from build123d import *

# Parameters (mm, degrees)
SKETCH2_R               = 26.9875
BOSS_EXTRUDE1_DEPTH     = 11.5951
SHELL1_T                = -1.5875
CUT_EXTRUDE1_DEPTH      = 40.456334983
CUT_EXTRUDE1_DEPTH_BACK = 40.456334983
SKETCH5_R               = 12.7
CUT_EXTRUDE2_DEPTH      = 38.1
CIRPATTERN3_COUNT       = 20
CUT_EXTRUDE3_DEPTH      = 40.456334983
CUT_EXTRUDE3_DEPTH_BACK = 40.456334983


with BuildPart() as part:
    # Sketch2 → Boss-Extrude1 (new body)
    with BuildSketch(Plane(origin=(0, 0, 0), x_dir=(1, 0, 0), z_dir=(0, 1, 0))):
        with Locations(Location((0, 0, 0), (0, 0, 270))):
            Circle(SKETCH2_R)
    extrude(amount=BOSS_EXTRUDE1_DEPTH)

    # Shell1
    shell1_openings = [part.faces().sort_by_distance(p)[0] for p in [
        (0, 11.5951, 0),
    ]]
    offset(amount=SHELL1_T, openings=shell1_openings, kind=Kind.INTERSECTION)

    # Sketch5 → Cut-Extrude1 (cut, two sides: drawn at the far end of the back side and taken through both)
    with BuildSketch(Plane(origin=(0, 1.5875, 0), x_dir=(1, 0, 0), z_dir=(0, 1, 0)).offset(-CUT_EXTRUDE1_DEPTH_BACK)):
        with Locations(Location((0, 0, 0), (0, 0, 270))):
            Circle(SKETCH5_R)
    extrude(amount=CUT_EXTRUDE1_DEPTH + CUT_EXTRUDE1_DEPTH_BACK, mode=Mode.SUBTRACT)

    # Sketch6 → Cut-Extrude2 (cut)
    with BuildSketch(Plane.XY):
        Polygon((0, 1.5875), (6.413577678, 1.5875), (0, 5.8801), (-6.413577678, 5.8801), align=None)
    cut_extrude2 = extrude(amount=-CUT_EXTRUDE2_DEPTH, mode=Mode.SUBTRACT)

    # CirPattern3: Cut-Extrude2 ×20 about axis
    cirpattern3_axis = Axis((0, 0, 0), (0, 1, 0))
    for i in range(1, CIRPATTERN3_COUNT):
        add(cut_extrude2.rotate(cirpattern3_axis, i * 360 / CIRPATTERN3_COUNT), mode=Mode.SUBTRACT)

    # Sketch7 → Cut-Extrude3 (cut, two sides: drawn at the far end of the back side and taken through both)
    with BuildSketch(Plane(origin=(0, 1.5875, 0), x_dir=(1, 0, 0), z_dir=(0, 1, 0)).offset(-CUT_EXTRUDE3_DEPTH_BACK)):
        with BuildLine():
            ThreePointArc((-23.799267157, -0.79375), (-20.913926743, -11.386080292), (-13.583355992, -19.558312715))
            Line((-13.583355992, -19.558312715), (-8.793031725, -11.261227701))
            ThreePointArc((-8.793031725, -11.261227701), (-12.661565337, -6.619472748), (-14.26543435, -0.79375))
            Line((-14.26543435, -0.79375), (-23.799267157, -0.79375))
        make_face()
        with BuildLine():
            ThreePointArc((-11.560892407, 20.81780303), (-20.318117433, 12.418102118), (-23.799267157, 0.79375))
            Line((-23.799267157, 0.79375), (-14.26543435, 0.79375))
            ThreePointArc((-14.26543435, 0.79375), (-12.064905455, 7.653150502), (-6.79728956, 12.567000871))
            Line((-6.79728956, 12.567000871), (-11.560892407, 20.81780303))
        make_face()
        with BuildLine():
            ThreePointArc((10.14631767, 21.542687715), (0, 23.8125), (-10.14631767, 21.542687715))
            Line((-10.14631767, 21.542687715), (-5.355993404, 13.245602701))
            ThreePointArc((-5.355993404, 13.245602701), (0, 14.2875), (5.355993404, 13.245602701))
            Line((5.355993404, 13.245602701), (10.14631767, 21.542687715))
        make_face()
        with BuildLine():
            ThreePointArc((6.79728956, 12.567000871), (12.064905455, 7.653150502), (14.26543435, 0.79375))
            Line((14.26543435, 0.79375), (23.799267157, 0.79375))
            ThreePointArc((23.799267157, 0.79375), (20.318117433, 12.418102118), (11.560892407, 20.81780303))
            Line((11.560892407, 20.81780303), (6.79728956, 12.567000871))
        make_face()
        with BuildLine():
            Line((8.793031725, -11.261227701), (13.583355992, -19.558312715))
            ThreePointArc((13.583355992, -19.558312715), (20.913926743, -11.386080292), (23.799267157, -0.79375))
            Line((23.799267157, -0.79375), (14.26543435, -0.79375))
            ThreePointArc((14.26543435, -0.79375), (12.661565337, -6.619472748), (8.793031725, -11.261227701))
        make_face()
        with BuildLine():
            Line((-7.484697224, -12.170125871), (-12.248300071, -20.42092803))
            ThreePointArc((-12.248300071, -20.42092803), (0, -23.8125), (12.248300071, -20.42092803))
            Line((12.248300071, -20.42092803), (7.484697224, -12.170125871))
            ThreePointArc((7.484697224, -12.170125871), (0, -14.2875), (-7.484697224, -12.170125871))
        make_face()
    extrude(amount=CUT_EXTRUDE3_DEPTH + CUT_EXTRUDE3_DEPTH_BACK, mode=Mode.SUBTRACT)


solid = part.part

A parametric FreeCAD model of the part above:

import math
import FreeCAD as App
import Part
import Sketcher

V = App.Vector
Q = App.Units.Quantity


def faces_at(feature, points):
    """Names of the faces that lie closest to the given points."""
    faces = feature.Shape.Faces
    near = lambda p: min(range(len(faces)), key=lambda i: faces[i].distToShape(Part.Vertex(*p))[0])
    return sorted({f"Face{near(p) + 1}" for p in points})

doc = App.newDocument("Part")
body = doc.addObject("PartDesign::Body", "Body")

sketch1 = doc.addObject("Sketcher::SketchObject", "Sketch")
body.addObject(sketch1)
sketch1.AttachmentSupport = (doc.XZ_Plane, [""])
sketch1.MapMode = "FlatFace"
sketch1.addGeometry(Part.Circle(V(0, 0, 0), V(0, 0, 1), 26.9875), False)
sketch1.addConstraint([
    Sketcher.Constraint("Coincident", 0, 3, -1, 1),
    Sketcher.Constraint("Diameter", 0, Q("2.125 in")),
])
pad1 = doc.addObject("PartDesign::Pad", "Pad")
body.addObject(pad1)
pad1.Profile = sketch1
pad1.Length = Q("0.4565 in")
pad1.Reversed = True
doc.recompute()

thickness = doc.addObject("PartDesign::Thickness", "Thickness")
body.addObject(thickness)
thickness.Base = (pad1, faces_at(pad1, [(0, 11.595, 0)]))
thickness.Value = Q("0.0625 in")
thickness.Reversed = True
thickness.Join = "Intersection"

sketch2 = doc.addObject("Sketcher::SketchObject", "Sketch001")
body.addObject(sketch2)
sketch2.AttachmentSupport = (doc.XZ_Plane, [""])
sketch2.MapMode = "FlatFace"
sketch2.AttachmentOffset = App.Placement(V(0, 0, -0.0625 * 25.4), App.Rotation())
sketch2.addGeometry(Part.Circle(V(0, 0, 0), V(0, 0, 1), 12.7), False)
sketch2.addConstraint([
    Sketcher.Constraint("Coincident", 0, 3, -1, 1),
    Sketcher.Constraint("Diameter", 0, Q("1 in")),
])
pocket1 = doc.addObject("PartDesign::Pocket", "Pocket")
body.addObject(pocket1)
pocket1.Profile = sketch2
pocket1.Type = "ThroughAll"
pocket1.Midplane = True

sketch3 = doc.addObject("Sketcher::SketchObject", "Sketch002")
body.addObject(sketch3)
sketch3.AttachmentSupport = (doc.XY_Plane, [""])
sketch3.MapMode = "FlatFace"
sketch3.addGeometry([
    Part.LineSegment(V(0, 1.5875, 0), V(6.413578, 1.5875, 0)),
    Part.LineSegment(V(6.413578, 1.5875, 0), V(0, 5.8801, 0)),
    Part.LineSegment(V(0, 5.8801, 0), V(-6.413578, 5.8801, 0)),
    Part.LineSegment(V(-6.413578, 5.8801, 0), V(0, 1.5875, 0)),
], False)
sketch3.addConstraint([
    Sketcher.Constraint("Coincident", 0, 2, 1, 1),
    Sketcher.Constraint("Coincident", 1, 2, 2, 1),
    Sketcher.Constraint("Coincident", 2, 2, 3, 1),
    Sketcher.Constraint("Coincident", 3, 2, 0, 1),
    Sketcher.Constraint("Horizontal", 0),
    Sketcher.Constraint("Horizontal", 2),
    Sketcher.Constraint("PointOnObject", 1, 2, -2),
    Sketcher.Constraint("PointOnObject", 3, 2, -2),
    Sketcher.Constraint("Parallel", 1, 3),
    Sketcher.Constraint("DistanceY", -1, 1, 0, 2, Q("0.0625 in")),
    Sketcher.Constraint("DistanceY", 0, 2, 1, 2, Q("0.169 in")),
    Sketcher.Constraint("Distance", 1, Q("7.717538 mm")),
])
pocket2 = doc.addObject("PartDesign::Pocket", "Pocket001")
body.addObject(pocket2)
pocket2.Profile = sketch3
pocket2.Length = Q("1.5 in")
doc.recompute()

polarpattern = doc.addObject("PartDesign::PolarPattern", "PolarPattern")
body.addObject(polarpattern)
polarpattern.Originals = [pocket2]
polarpattern.Axis = (doc.Y_Axis, [""])
polarpattern.Angle = 360
polarpattern.Occurrences = 20
body.Tip = polarpattern

sketch4 = doc.addObject("Sketcher::SketchObject", "Sketch003")
body.addObject(sketch4)
sketch4.AttachmentSupport = (doc.XZ_Plane, [""])
sketch4.MapMode = "FlatFace"
sketch4.AttachmentOffset = App.Placement(V(0, 0, -0.0625 * 25.4), App.Rotation())
sketch4.addGeometry([
    Part.ArcOfCircle(Part.Circle(V(0, 0, 0), V(0, 0, 1), 23.8125), math.radians(124.780192), math.radians(178.089787)),
    Part.LineSegment(V(-13.583356, 19.558313, 0), V(-8.793032, 11.261228, 0)),
    Part.ArcOfCircle(Part.Circle(V(0, 0, 0), V(0, 0, 1), 14.2875), math.radians(127.983556), math.radians(176.815261)),
    Part.LineSegment(V(-14.265434, 0.79375, 0), V(-23.799267, 0.79375, 0)),
    Part.ArcOfCircle(Part.Circle(V(0, 0, 0), V(0, 0, 1), 23.8125), math.radians(-178.089787), math.radians(-119.045026)),
    Part.LineSegment(V(-23.799267, -0.79375, 0), V(-14.265434, -0.79375, 0)),
    Part.ArcOfCircle(Part.Circle(V(0, 0, 0), V(0, 0, 1), 14.2875), math.radians(-176.815261), math.radians(-118.408246)),
    Part.LineSegment(V(-6.79729, -12.567001, 0), V(-11.560892, -20.817803, 0)),
    Part.ArcOfCircle(Part.Circle(V(0, 0, 0), V(0, 0, 1), 23.8125), math.radians(-115.219808), math.radians(-64.780192)),
    Part.LineSegment(V(-10.146318, -21.542688, 0), V(-5.355993, -13.245603, 0)),
    Part.ArcOfCircle(Part.Circle(V(0, 0, 0), V(0, 0, 1), 14.2875), math.radians(-112.016444), math.radians(-67.983556)),
    Part.LineSegment(V(5.355993, -13.245603, 0), V(10.146318, -21.542688, 0)),
    Part.ArcOfCircle(Part.Circle(V(0, 0, 0), V(0, 0, 1), 14.2875), math.radians(-61.591754), math.radians(-3.184739)),
    Part.LineSegment(V(14.265434, -0.79375, 0), V(23.799267, -0.79375, 0)),
    Part.ArcOfCircle(Part.Circle(V(0, 0, 0), V(0, 0, 1), 23.8125), math.radians(-60.954974), math.radians(-1.910213)),
    Part.LineSegment(V(11.560892, -20.817803, 0), V(6.79729, -12.567001, 0)),
    Part.LineSegment(V(8.793032, 11.261228, 0), V(13.583356, 19.558313, 0)),
    Part.ArcOfCircle(Part.Circle(V(0, 0, 0), V(0, 0, 1), 23.8125), math.radians(1.910213), math.radians(55.219808)),
    Part.LineSegment(V(23.799267, 0.79375, 0), V(14.265434, 0.79375, 0)),
    Part.ArcOfCircle(Part.Circle(V(0, 0, 0), V(0, 0, 1), 14.2875), math.radians(3.184739), math.radians(52.016444)),
    Part.LineSegment(V(-7.484697, 12.170126, 0), V(-12.2483, 20.420928, 0)),
    Part.ArcOfCircle(Part.Circle(V(0, 0, 0), V(0, 0, 1), 23.8125), math.radians(59.045026), math.radians(120.954974)),
    Part.LineSegment(V(12.2483, 20.420928, 0), V(7.484697, 12.170126, 0)),
    Part.ArcOfCircle(Part.Circle(V(0, 0, 0), V(0, 0, 1), 14.2875), math.radians(58.408246), math.radians(121.591754)),
], False)
sketch4.addConstraint([
    Sketcher.Constraint("Coincident", 0, 1, 1, 1),
    Sketcher.Constraint("Coincident", 1, 2, 2, 1),
    Sketcher.Constraint("Coincident", 2, 2, 3, 1),
    Sketcher.Constraint("Coincident", 3, 2, 0, 2),
    Sketcher.Constraint("Coincident", 4, 1, 5, 1),
    Sketcher.Constraint("Coincident", 5, 2, 6, 1),
    Sketcher.Constraint("Coincident", 6, 2, 7, 1),
    Sketcher.Constraint("Coincident", 7, 2, 4, 2),
    Sketcher.Constraint("Coincident", 8, 1, 9, 1),
    Sketcher.Constraint("Coincident", 9, 2, 10, 1),
    Sketcher.Constraint("Coincident", 10, 2, 11, 1),
    Sketcher.Constraint("Coincident", 11, 2, 8, 2),
    Sketcher.Constraint("Coincident", 12, 2, 13, 1),
    Sketcher.Constraint("Coincident", 13, 2, 14, 2),
    Sketcher.Constraint("Coincident", 14, 1, 15, 1),
    Sketcher.Constraint("Coincident", 15, 2, 12, 1),
    Sketcher.Constraint("Coincident", 16, 2, 17, 2),
    Sketcher.Constraint("Coincident", 17, 1, 18, 1),
    Sketcher.Constraint("Coincident", 18, 2, 19, 1),
    Sketcher.Constraint("Coincident", 19, 2, 16, 1),
    Sketcher.Constraint("Coincident", 20, 2, 21, 2),
    Sketcher.Constraint("Coincident", 21, 1, 22, 1),
    Sketcher.Constraint("Coincident", 22, 2, 23, 1),
    Sketcher.Constraint("Coincident", 23, 2, 20, 1),
    Sketcher.Constraint("Horizontal", 3),
    Sketcher.Constraint("Horizontal", 5),
    Sketcher.Constraint("Horizontal", 13),
    Sketcher.Constraint("Horizontal", 18),
    Sketcher.Constraint("Coincident", 0, 3, -1, 1),
    Sketcher.Constraint("Coincident", 2, 3, -1, 1),
    Sketcher.Constraint("Coincident", 4, 3, -1, 1),
    Sketcher.Constraint("Coincident", 6, 3, -1, 1),
    Sketcher.Constraint("Coincident", 8, 3, -1, 1),
    Sketcher.Constraint("Coincident", 10, 3, -1, 1),
    Sketcher.Constraint("Coincident", 12, 3, -1, 1),
    Sketcher.Constraint("Coincident", 14, 3, -1, 1),
    Sketcher.Constraint("Coincident", 17, 3, -1, 1),
    Sketcher.Constraint("Coincident", 19, 3, -1, 1),
    Sketcher.Constraint("Coincident", 21, 3, -1, 1),
    Sketcher.Constraint("Coincident", 23, 3, -1, 1),
    Sketcher.Constraint("Equal", 0, 4),
    Sketcher.Constraint("Equal", 2, 6),
    Sketcher.Constraint("Equal", 4, 8),
    Sketcher.Constraint("Equal", 6, 10),
    Sketcher.Constraint("Equal", 10, 12),
    Sketcher.Constraint("Equal", 8, 14),
    Sketcher.Constraint("Equal", 14, 17),
    Sketcher.Constraint("Equal", 12, 19),
    Sketcher.Constraint("Equal", 17, 21),
    Sketcher.Constraint("Equal", 19, 23),
    Sketcher.Constraint("Parallel", 7, 9),
    Sketcher.Constraint("Parallel", 1, 11),
    Sketcher.Constraint("Parallel", 11, 15),
    Sketcher.Constraint("Parallel", 9, 16),
    Sketcher.Constraint("Parallel", 15, 20),
    Sketcher.Constraint("Parallel", 16, 22),
    Sketcher.Constraint("Horizontal", 9, 2, 10, 2),
    Sketcher.Constraint("Horizontal", 8, 1, 11, 2),
    Sketcher.Constraint("Horizontal", 5, 2, 12, 2),
    Sketcher.Constraint("Horizontal", 7, 2, 14, 1),
    Sketcher.Constraint("Horizontal", 0, 1, 16, 2),
    Sketcher.Constraint("Horizontal", 3, 2, 17, 1),
    Sketcher.Constraint("Horizontal", 20, 2, 21, 1),
    Sketcher.Constraint("Vertical", 3, 2, 4, 1),
    Sketcher.Constraint("Equal", 1, 9),
    Sketcher.Constraint("Equal", 15, 20),
    Sketcher.Constraint("Angle", 1, Q("-60 deg")),
    Sketcher.Constraint("Radius", 0, Q("0.9375 in")),
    Sketcher.Constraint("Radius", 2, Q("0.5625 in")),
    Sketcher.Constraint("DistanceY", -1, 1, 2, 2, Q("0.03125 in")),
    Sketcher.Constraint("DistanceY", 6, 2, -1, 1, Q("12.567001 mm")),
    Sketcher.Constraint("DistanceY", 9, 2, 6, 2, Q("0.678602 mm")),
])
pocket3 = doc.addObject("PartDesign::Pocket", "Pocket002")
body.addObject(pocket3)
pocket3.Profile = sketch4
pocket3.Type = "ThroughAll"
pocket3.Midplane = True

doc.recompute()
